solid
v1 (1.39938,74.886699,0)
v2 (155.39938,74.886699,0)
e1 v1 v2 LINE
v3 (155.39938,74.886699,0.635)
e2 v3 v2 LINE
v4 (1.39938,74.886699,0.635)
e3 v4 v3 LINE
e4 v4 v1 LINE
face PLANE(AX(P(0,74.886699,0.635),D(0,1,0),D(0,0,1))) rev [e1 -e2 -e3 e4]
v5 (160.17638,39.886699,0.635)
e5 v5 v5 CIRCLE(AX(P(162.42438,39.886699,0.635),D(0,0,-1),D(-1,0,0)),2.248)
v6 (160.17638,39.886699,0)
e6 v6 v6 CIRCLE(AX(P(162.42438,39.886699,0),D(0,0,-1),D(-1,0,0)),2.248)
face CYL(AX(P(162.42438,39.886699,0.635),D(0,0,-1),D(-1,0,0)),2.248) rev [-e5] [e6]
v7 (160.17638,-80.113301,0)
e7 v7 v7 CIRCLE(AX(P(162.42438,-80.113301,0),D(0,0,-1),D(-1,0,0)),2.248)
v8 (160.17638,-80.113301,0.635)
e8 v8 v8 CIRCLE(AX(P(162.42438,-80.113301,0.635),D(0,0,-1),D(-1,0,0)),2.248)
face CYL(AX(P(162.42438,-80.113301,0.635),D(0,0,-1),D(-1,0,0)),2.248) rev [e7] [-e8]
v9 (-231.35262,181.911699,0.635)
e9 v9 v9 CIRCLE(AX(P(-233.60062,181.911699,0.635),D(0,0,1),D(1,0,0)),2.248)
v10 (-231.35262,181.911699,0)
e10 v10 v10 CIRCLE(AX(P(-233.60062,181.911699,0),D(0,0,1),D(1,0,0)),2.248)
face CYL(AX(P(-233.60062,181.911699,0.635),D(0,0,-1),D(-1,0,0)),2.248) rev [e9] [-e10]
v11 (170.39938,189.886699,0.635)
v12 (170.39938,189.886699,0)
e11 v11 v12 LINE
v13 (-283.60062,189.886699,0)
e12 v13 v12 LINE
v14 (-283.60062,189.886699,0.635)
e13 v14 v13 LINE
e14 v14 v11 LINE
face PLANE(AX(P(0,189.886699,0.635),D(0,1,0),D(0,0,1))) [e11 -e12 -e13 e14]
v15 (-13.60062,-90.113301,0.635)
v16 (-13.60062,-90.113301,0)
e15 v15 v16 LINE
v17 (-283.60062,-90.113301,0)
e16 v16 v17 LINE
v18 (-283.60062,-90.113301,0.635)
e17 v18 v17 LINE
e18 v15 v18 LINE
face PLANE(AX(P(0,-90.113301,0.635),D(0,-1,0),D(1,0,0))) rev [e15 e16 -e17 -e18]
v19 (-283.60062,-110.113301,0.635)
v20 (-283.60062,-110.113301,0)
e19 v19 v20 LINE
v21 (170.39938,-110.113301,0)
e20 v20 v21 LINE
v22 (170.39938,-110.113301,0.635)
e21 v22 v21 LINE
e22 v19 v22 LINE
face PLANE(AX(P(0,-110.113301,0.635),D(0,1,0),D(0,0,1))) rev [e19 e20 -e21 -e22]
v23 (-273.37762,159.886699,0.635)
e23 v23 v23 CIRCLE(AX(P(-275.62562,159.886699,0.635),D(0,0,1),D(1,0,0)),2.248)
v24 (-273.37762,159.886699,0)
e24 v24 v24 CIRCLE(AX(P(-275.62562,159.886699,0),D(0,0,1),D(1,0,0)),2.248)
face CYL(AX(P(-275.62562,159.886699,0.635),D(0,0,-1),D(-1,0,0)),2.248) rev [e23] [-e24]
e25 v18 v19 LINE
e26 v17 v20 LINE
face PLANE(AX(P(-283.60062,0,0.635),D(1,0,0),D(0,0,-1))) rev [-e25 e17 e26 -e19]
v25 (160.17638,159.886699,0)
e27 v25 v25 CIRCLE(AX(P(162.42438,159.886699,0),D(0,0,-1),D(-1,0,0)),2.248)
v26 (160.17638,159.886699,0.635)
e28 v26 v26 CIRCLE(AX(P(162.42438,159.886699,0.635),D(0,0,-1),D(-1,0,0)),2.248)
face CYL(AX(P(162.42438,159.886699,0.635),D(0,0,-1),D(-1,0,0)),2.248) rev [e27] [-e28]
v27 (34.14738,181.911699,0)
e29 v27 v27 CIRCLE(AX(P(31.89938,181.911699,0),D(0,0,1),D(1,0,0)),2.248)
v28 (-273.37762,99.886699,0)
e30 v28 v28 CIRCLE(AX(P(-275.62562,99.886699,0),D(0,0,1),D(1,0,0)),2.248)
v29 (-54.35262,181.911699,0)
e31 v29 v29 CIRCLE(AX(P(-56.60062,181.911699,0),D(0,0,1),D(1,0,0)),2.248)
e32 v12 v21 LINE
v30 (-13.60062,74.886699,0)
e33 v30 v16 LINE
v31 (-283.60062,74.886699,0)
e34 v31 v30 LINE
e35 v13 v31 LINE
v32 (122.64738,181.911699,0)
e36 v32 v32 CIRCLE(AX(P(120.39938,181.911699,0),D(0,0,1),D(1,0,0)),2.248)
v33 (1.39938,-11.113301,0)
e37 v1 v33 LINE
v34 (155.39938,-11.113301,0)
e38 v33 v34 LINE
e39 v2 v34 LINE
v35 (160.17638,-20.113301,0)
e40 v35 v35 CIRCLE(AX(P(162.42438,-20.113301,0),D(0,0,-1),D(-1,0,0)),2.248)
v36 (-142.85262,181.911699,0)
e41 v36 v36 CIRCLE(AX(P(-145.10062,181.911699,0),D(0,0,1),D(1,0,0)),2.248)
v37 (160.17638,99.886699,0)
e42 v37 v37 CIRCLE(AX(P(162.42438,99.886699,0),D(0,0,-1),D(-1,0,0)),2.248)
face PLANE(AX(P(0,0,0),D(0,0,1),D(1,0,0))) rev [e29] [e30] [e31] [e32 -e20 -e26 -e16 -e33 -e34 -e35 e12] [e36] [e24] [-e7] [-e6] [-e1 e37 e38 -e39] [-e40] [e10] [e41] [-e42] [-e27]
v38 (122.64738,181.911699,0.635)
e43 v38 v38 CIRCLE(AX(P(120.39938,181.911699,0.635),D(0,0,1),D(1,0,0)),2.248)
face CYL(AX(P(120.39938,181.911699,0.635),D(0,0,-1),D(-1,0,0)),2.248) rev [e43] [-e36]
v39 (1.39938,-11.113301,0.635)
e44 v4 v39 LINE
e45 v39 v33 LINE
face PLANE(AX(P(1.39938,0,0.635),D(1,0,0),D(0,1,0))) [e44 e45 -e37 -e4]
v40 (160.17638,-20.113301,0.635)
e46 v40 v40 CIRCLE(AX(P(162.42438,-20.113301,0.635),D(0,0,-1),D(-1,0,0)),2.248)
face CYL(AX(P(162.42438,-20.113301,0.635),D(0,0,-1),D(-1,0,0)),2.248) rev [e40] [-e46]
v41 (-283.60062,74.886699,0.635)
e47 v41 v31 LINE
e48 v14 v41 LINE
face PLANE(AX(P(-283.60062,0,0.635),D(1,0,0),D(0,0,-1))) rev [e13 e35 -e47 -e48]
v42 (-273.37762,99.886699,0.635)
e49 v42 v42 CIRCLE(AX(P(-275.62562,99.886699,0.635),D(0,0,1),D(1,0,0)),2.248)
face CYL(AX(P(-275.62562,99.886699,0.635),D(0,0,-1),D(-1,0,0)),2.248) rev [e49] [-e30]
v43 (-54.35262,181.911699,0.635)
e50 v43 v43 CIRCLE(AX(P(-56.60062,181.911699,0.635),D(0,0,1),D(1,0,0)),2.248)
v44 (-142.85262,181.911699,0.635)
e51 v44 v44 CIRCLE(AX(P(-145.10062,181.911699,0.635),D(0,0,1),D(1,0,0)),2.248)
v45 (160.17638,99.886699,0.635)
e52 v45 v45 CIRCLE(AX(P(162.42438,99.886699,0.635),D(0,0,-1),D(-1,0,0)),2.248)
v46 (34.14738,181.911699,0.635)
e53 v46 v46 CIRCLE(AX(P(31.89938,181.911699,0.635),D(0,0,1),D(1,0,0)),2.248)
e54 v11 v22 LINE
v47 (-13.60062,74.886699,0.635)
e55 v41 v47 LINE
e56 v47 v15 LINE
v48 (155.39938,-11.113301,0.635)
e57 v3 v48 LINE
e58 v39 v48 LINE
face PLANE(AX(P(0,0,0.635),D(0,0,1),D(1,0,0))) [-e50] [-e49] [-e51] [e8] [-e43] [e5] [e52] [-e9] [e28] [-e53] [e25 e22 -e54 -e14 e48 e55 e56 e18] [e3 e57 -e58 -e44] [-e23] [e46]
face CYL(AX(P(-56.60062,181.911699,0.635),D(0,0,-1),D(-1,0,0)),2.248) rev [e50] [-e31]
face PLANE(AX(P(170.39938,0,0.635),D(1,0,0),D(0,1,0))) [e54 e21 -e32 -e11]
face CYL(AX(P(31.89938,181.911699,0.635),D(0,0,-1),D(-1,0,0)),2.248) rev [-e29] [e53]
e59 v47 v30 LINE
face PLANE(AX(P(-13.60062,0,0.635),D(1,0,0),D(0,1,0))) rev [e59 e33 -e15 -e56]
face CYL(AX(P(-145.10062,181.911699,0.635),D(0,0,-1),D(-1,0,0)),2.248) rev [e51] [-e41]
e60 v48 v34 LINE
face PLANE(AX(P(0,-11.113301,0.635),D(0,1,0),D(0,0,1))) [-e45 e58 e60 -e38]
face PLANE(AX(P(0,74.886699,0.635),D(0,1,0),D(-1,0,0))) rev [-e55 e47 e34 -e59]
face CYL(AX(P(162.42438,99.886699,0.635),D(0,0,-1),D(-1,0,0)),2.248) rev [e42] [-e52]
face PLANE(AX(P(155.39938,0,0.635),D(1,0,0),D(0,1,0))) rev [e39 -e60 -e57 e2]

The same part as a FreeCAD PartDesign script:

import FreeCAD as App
import Part
import Sketcher


def add_polygon(sketch, points):
    """Adds a closed chain of lines whose ends are joined by coincident constraints."""
    first, n = sketch.GeometryCount, len(points)
    for a, b in zip(points, points[1:] + points[:1]):
        sketch.addGeometry(Part.LineSegment(App.Vector(*a, 0), App.Vector(*b, 0)), False)
    for i in range(n):
        sketch.addConstraint(Sketcher.Constraint("Coincident", first + i, 2, first + (i + 1) % n, 1))

doc = App.newDocument("Part")
body = doc.addObject("PartDesign::Body", "Body")

# Sketch on XY plane
sketch1 = body.newObject("Sketcher::SketchObject", "Sketch")
sketch1.AttachmentSupport = (doc.getObject("XY_Plane"), [""])
sketch1.MapMode = "FlatFace"
add_polygon(sketch1, [(-284, 190), (-284, 75), (-14, 75), (-14, -90), (-284, -90), (-284, -110), (170, -110), (170, 190)])  # lines 0-7
add_polygon(sketch1, [(155, -11), (1, -11), (1, 75), (155, 75)])  # lines 8-11
sketch1.addConstraint(Sketcher.Constraint("Vertical", 0))
sketch1.addConstraint(Sketcher.Constraint("Horizontal", 1))
sketch1.addConstraint(Sketcher.Constraint("Vertical", 2))
sketch1.addConstraint(Sketcher.Constraint("Horizontal", 3))
sketch1.addConstraint(Sketcher.Constraint("Vertical", 4))
sketch1.addConstraint(Sketcher.Constraint("Horizontal", 5))
sketch1.addConstraint(Sketcher.Constraint("Vertical", 6))
sketch1.addConstraint(Sketcher.Constraint("Horizontal", 7))
sketch1.addConstraint(Sketcher.Constraint("Horizontal", 8))
sketch1.addConstraint(Sketcher.Constraint("Vertical", 9))
sketch1.addConstraint(Sketcher.Constraint("Horizontal", 10))
sketch1.addConstraint(Sketcher.Constraint("Vertical", 11))
sketch1.addConstraint(Sketcher.Constraint("Horizontal", 1, 2, 9, 2))
sketch1.addConstraint(Sketcher.Constraint("Vertical", 0, 2, 3, 2))
sketch1.addConstraint(Sketcher.Constraint("DistanceX", 1, 1, 1, 2, 270.0))
sketch1.addConstraint(Sketcher.Constraint("DistanceX", 5, 1, 5, 2, 454.0))
sketch1.addConstraint(Sketcher.Constraint("DistanceX", 8, 2, 8, 1, 154.0))
sketch1.addConstraint(Sketcher.Constraint("DistanceY", 0, 2, 0, 1, 115.0))
sketch1.addConstraint(Sketcher.Constraint("DistanceY", 2, 2, 2, 1, 165.0))
sketch1.addConstraint(Sketcher.Constraint("DistanceY", 4, 2, 4, 1, 20.0))
sketch1.addConstraint(Sketcher.Constraint("DistanceY", 9, 1, 9, 2, 86.0))
sketch1.addConstraint(Sketcher.Constraint("DistanceX", 2, 2, 8, 2, 15.0))
sketch1.addConstraint(Sketcher.Constraint("DistanceY", -1, 1, 0, 2, 74.886699))
sketch1.addConstraint(Sketcher.Constraint("DistanceX", 0, 2, -1, 1, 283.60062))
pad1 = body.newObject("PartDesign::Pad", "Pad")
pad1.Profile = sketch1
pad1.Length = 0.635

# Sketch on XY plane
sketch2 = body.newObject("Sketcher::SketchObject", "Sketch001")
sketch2.AttachmentSupport = (doc.getObject("XY_Plane"), [""])
sketch2.MapMode = "FlatFace"
sketch2.addGeometry(Part.Circle(App.Vector(-233.6, 181.9, 0), App.Vector(0, 0, 1), 2.2), False)
sketch2.addConstraint(Sketcher.Constraint("Diameter", 0, 4.496))
sketch2.addConstraint(Sketcher.Constraint("DistanceY", -1, 1, 0, 3, 181.911699))
sketch2.addConstraint(Sketcher.Constraint("DistanceX", 0, 3, -1, 1, 233.60062))
pocket1 = body.newObject("PartDesign::Pocket", "Pocket")
pocket1.Profile = sketch2
pocket1.Type = "ThroughAll"
pocket1.Reversed = True
doc.recompute()

linearpattern = body.newObject("PartDesign::LinearPattern", "LinearPattern")
linearpattern.Originals = [pocket1]
linearpattern.Direction = (doc.getObject("X_Axis"), [""])
linearpattern.Mode = "offset"
linearpattern.Offset = 88.5
linearpattern.Occurrences = 5
body.Tip = linearpattern

# Sketch on XY plane
sketch3 = body.newObject("Sketcher::SketchObject", "Sketch002")
sketch3.AttachmentSupport = (doc.getObject("XY_Plane"), [""])
sketch3.MapMode = "FlatFace"
sketch3.addGeometry(Part.Circle(App.Vector(-275.6, 159.9, 0), App.Vector(0, 0, 1), 2.2), False)
sketch3.addConstraint(Sketcher.Constraint("Diameter", 0, 4.496))
sketch3.addConstraint(Sketcher.Constraint("DistanceY", -1, 1, 0, 3, 159.886699))
sketch3.addConstraint(Sketcher.Constraint("DistanceX", 0, 3, -1, 1, 275.62562))
pocket2 = body.newObject("PartDesign::Pocket", "Pocket001")
pocket2.Profile = sketch3
pocket2.Type = "ThroughAll"
pocket2.Reversed = True
doc.recompute()

linearpattern2 = body.newObject("PartDesign::LinearPattern", "LinearPattern001")
linearpattern2.Originals = [pocket2]
linearpattern2.Direction = (doc.getObject("Y_Axis"), [""])
linearpattern2.Mode = "offset"
linearpattern2.Offset = 60
linearpattern2.Occurrences = 6
linearpattern2.Reversed = True
body.Tip = linearpattern2
doc.recompute()

datumplane = body.newObject("PartDesign::Plane", "DatumPlane")
datumplane.AttachmentSupport = (doc.getObject("YZ_Plane"), [""])
datumplane.MapMode = "FlatFace"
datumplane.AttachmentOffset = App.Placement(App.Vector(0, 0, -56.60062), App.Rotation())
mirrored = body.newObject("PartDesign::Mirrored", "Mirrored")
mirrored.Originals = [pocket2]
mirrored.MirrorPlane = (datumplane, [""])
body.Tip = mirrored

# Sketch on XY plane
sketch4 = body.newObject("Sketcher::SketchObject", "Sketch003")
sketch4.AttachmentSupport = (doc.getObject("XY_Plane"), [""])
sketch4.MapMode = "FlatFace"
sketch4.addGeometry(Part.Circle(App.Vector(162.4, 99.9, 0), App.Vector(0, 0, 1), 2.2), False)
sketch4.addConstraint(Sketcher.Constraint("Diameter", 0, 4.496))
sketch4.addConstraint(Sketcher.Constraint("DistanceY", -1, 1, 0, 3, 99.886699))
sketch4.addConstraint(Sketcher.Constraint("DistanceX", -1, 1, 0, 3, 162.42438))
pocket3 = body.newObject("PartDesign::Pocket", "Pocket002")
pocket3.Profile = sketch4
pocket3.Type = "ThroughAll"
pocket3.Reversed = True

# Sketch on XY plane
sketch5 = body.newObject("Sketcher::SketchObject", "Sketch004")
sketch5.AttachmentSupport = (doc.getObject("XY_Plane"), [""])
sketch5.MapMode = "FlatFace"
sketch5.addGeometry(Part.Circle(App.Vector(162.4, 39.9, 0), App.Vector(0, 0, 1), 2.2), False)
sketch5.addConstraint(Sketcher.Constraint("Diameter", 0, 4.496))
sketch5.addConstraint(Sketcher.Constraint("DistanceY", -1, 1, 0, 3, 39.886699))
sketch5.addConstraint(Sketcher.Constraint("DistanceX", -1, 1, 0, 3, 162.42438))
pocket4 = body.newObject("PartDesign::Pocket", "Pocket003")
pocket4.Profile = sketch5
pocket4.Type = "ThroughAll"
pocket4.Reversed = True

# Sketch on XY plane
sketch6 = body.newObject("Sketcher::SketchObject", "Sketch005")
sketch6.AttachmentSupport = (doc.getObject("XY_Plane"), [""])
sketch6.MapMode = "FlatFace"
sketch6.addGeometry(Part.Circle(App.Vector(162.4, -20.1, 0), App.Vector(0, 0, 1), 2.2), False)
sketch6.addConstraint(Sketcher.Constraint("Diameter", 0, 4.496))
sketch6.addConstraint(Sketcher.Constraint("DistanceY", 0, 3, -1, 1, 20.113301))
sketch6.addConstraint(Sketcher.Constraint("DistanceX", -1, 1, 0, 3, 162.42438))
pocket5 = body.newObject("PartDesign::Pocket", "Pocket004")
pocket5.Profile = sketch6
pocket5.Type = "ThroughAll"
pocket5.Reversed = True

# Sketch on XY plane
sketch7 = body.newObject("Sketcher::SketchObject", "Sketch006")
sketch7.AttachmentSupport = (doc.getObject("XY_Plane"), [""])
sketch7.MapMode = "FlatFace"
sketch7.addGeometry(Part.Circle(App.Vector(162.4, -80.1, 0), App.Vector(0, 0, 1), 2.2), False)
sketch7.addConstraint(Sketcher.Constraint("Diameter", 0, 4.496))
sketch7.addConstraint(Sketcher.Constraint("DistanceY", 0, 3, -1, 1, 80.113301))
sketch7.addConstraint(Sketcher.Constraint("DistanceX", -1, 1, 0, 3, 162.42438))
pocket6 = body.newObject("PartDesign::Pocket", "Pocket005")
pocket6.Profile = sketch7
pocket6.Type = "ThroughAll"
pocket6.Reversed = True

# Sketch on XY plane
sketch8 = body.newObject("Sketcher::SketchObject", "Sketch007")
sketch8.AttachmentSupport = (doc.getObject("XY_Plane"), [""])
sketch8.MapMode = "FlatFace"
sketch8.addGeometry(Part.Circle(App.Vector(162.4, -140.1, 0), App.Vector(0, 0, 1), 2.2), False)
sketch8.addConstraint(Sketcher.Constraint("Diameter", 0, 4.496))
sketch8.addConstraint(Sketcher.Constraint("DistanceY", 0, 3, -1, 1, 140.113301))
sketch8.addConstraint(Sketcher.Constraint("DistanceX", -1, 1, 0, 3, 162.42438))
pocket7 = body.newObject("PartDesign::Pocket", "Pocket006")
pocket7.Profile = sketch8
pocket7.Type = "ThroughAll"
pocket7.Reversed = True

doc.recompute()
